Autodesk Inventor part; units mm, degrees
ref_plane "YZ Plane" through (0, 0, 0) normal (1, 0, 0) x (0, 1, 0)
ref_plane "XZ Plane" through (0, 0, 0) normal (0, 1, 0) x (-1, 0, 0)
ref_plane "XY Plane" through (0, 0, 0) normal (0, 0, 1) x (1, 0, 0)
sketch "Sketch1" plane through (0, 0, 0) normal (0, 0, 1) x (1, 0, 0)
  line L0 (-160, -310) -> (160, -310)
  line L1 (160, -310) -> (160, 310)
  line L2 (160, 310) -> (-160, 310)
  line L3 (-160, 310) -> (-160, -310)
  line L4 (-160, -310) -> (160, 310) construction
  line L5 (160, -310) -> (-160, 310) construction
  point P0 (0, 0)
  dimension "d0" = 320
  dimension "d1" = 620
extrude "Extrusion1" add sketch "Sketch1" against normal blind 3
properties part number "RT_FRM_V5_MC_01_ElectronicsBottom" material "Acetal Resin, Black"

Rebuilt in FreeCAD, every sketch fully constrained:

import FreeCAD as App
import Part
import Sketcher
from FreeCAD import Vector

doc = App.newDocument("Part")
body = doc.addObject("PartDesign::Body", "Body")

sketch1 = body.newObject("Sketcher::SketchObject", "Sketch")
sketch1.AttachmentSupport = (doc.getObject("XY_Plane"), [""])
sketch1.MapMode = "FlatFace"
sketch1.addGeometry([
    Part.LineSegment(Vector(-160, 310, 0), Vector(-160, -310, 0)),
    Part.LineSegment(Vector(-160, -310, 0), Vector(160, -310, 0)),
    Part.LineSegment(Vector(160, -310, 0), Vector(160, 310, 0)),
    Part.LineSegment(Vector(160, 310, 0), Vector(-160, 310, 0)),
], False)
sketch1.addConstraint([
    Sketcher.Constraint("Coincident", 0, 2, 1, 1),
    Sketcher.Constraint("Coincident", 1, 2, 2, 1),
    Sketcher.Constraint("Coincident", 2, 2, 3, 1),
    Sketcher.Constraint("Coincident", 3, 2, 0, 1),
    Sketcher.Constraint("Vertical", 0),
    Sketcher.Constraint("Horizontal", 1),
    Sketcher.Constraint("Vertical", 2),
    Sketcher.Constraint("Horizontal", 3),
    Sketcher.Constraint("Symmetric", 0, 2, 2, 2, -1, 1),
    Sketcher.Constraint("DistanceX", 1, 1, 1, 2, 320.0),
    Sketcher.Constraint("DistanceY", 0, 2, 0, 1, 620.0),
])
pad1 = body.newObject("PartDesign::Pad", "Pad")
pad1.Profile = sketch1
pad1.Length = 3
pad1.Reversed = True

doc.recompute()
